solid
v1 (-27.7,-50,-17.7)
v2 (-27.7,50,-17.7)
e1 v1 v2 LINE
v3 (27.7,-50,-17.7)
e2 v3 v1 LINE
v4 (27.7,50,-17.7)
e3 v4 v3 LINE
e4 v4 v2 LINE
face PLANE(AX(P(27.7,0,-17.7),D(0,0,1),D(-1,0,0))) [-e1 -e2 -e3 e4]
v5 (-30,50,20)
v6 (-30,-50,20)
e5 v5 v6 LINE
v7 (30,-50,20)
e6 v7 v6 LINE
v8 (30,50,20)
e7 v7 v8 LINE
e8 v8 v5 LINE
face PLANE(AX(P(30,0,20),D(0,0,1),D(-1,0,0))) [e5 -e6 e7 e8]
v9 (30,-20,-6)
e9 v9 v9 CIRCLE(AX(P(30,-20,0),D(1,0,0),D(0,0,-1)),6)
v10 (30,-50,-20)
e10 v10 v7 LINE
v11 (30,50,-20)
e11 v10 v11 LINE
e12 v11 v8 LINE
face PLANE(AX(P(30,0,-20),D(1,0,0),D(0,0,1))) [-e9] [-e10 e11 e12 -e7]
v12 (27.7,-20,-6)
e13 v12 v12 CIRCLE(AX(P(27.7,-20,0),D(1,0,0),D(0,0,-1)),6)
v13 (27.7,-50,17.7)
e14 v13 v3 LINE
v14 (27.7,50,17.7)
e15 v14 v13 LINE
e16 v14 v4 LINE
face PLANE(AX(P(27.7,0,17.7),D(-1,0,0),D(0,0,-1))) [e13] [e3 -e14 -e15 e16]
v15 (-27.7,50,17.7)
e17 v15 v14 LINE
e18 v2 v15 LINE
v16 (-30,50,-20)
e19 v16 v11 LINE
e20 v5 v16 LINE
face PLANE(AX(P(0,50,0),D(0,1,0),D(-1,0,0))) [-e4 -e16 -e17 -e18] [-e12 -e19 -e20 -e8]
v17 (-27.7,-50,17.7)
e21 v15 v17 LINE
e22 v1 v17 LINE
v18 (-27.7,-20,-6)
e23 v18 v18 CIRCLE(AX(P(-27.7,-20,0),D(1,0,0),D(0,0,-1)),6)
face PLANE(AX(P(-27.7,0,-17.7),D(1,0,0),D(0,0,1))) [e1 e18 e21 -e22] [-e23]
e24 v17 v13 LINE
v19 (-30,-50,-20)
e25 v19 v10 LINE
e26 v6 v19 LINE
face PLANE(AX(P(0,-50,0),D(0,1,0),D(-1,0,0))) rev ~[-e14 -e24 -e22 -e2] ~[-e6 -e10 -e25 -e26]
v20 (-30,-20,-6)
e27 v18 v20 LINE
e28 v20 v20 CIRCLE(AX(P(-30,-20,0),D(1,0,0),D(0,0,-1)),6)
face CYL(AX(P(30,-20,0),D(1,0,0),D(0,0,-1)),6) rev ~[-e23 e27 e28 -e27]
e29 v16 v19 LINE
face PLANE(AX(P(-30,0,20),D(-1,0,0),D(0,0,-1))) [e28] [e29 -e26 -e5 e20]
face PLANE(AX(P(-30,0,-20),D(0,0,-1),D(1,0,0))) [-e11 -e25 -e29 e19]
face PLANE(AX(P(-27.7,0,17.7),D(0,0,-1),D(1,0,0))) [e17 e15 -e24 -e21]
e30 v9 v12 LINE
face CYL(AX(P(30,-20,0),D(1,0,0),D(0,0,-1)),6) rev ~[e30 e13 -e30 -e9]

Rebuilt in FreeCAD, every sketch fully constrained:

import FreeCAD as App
import Part
import Sketcher
Q = App.Units.Quantity


def add_polygon(sketch, points):
    """Adds a closed chain of lines whose ends are joined by coincident constraints."""
    first, n = sketch.GeometryCount, len(points)
    for a, b in zip(points, points[1:] + points[:1]):
        sketch.addGeometry(Part.LineSegment(App.Vector(*a, 0), App.Vector(*b, 0)), False)
    for i in range(n):
        sketch.addConstraint(Sketcher.Constraint("Coincident", first + i, 2, first + (i + 1) % n, 1))

doc = App.newDocument("Part")
body = doc.addObject("PartDesign::Body", "Body")

sketch1 = doc.addObject("Sketcher::SketchObject", "Sketch")
body.addObject(sketch1)
sketch1.AttachmentSupport = (doc.XZ_Plane, [""])
sketch1.MapMode = "FlatFace"
add_polygon(sketch1, [(-30, 20), (30, 20), (30, -20), (-30, -20)])
add_polygon(sketch1, [(-28, 18), (-28, -18), (28, -18), (28, 18)])
sketch1.addConstraint(Sketcher.Constraint("Horizontal", 0))
sketch1.addConstraint(Sketcher.Constraint("Vertical", 1))
sketch1.addConstraint(Sketcher.Constraint("Horizontal", 2))
sketch1.addConstraint(Sketcher.Constraint("Vertical", 3))
sketch1.addConstraint(Sketcher.Constraint("Vertical", 4))
sketch1.addConstraint(Sketcher.Constraint("Horizontal", 5))
sketch1.addConstraint(Sketcher.Constraint("Vertical", 6))
sketch1.addConstraint(Sketcher.Constraint("Horizontal", 7))
sketch1.addConstraint(Sketcher.Constraint("Symmetric", 0, 2, 2, 2, -1, 1))
sketch1.addConstraint(Sketcher.Constraint("Symmetric", 4, 2, 6, 2, -1, 1))
sketch1.addConstraint(Sketcher.Constraint("DistanceX", 0, 1, 0, 2, Q("60 mm")))
sketch1.addConstraint(Sketcher.Constraint("DistanceY", 1, 2, 1, 1, Q("40 mm")))
sketch1.addConstraint(Sketcher.Constraint("DistanceX", 2, 2, 4, 2, Q("2.3 mm")))
sketch1.addConstraint(Sketcher.Constraint("DistanceY", 2, 2, 4, 2, Q("2.3 mm")))
pad1 = doc.addObject("PartDesign::Pad", "Pad")
body.addObject(pad1)
pad1.Profile = sketch1
pad1.Length = 100
pad1.Midplane = True

sketch2 = doc.addObject("Sketcher::SketchObject", "Sketch001")
body.addObject(sketch2)
sketch2.AttachmentSupport = (doc.YZ_Plane, [""])
sketch2.MapMode = "FlatFace"
sketch2.AttachmentOffset = App.Placement(App.Vector(0, 0, 30), App.Rotation())
sketch2.addGeometry(Part.Circle(App.Vector(-20, 0, 0), App.Vector(0, 0, 1), 6), False)
sketch2.addConstraint(Sketcher.Constraint("PointOnObject", 0, 3, -1))
sketch2.addConstraint(Sketcher.Constraint("Diameter", 0, Q("12 mm")))
sketch2.addConstraint(Sketcher.Constraint("DistanceX", 0, 3, -1, 1, Q("20 mm")))
pocket1 = doc.addObject("PartDesign::Pocket", "Pocket")
body.addObject(pocket1)
pocket1.Profile = sketch2
pocket1.Length = 60

doc.recompute()
